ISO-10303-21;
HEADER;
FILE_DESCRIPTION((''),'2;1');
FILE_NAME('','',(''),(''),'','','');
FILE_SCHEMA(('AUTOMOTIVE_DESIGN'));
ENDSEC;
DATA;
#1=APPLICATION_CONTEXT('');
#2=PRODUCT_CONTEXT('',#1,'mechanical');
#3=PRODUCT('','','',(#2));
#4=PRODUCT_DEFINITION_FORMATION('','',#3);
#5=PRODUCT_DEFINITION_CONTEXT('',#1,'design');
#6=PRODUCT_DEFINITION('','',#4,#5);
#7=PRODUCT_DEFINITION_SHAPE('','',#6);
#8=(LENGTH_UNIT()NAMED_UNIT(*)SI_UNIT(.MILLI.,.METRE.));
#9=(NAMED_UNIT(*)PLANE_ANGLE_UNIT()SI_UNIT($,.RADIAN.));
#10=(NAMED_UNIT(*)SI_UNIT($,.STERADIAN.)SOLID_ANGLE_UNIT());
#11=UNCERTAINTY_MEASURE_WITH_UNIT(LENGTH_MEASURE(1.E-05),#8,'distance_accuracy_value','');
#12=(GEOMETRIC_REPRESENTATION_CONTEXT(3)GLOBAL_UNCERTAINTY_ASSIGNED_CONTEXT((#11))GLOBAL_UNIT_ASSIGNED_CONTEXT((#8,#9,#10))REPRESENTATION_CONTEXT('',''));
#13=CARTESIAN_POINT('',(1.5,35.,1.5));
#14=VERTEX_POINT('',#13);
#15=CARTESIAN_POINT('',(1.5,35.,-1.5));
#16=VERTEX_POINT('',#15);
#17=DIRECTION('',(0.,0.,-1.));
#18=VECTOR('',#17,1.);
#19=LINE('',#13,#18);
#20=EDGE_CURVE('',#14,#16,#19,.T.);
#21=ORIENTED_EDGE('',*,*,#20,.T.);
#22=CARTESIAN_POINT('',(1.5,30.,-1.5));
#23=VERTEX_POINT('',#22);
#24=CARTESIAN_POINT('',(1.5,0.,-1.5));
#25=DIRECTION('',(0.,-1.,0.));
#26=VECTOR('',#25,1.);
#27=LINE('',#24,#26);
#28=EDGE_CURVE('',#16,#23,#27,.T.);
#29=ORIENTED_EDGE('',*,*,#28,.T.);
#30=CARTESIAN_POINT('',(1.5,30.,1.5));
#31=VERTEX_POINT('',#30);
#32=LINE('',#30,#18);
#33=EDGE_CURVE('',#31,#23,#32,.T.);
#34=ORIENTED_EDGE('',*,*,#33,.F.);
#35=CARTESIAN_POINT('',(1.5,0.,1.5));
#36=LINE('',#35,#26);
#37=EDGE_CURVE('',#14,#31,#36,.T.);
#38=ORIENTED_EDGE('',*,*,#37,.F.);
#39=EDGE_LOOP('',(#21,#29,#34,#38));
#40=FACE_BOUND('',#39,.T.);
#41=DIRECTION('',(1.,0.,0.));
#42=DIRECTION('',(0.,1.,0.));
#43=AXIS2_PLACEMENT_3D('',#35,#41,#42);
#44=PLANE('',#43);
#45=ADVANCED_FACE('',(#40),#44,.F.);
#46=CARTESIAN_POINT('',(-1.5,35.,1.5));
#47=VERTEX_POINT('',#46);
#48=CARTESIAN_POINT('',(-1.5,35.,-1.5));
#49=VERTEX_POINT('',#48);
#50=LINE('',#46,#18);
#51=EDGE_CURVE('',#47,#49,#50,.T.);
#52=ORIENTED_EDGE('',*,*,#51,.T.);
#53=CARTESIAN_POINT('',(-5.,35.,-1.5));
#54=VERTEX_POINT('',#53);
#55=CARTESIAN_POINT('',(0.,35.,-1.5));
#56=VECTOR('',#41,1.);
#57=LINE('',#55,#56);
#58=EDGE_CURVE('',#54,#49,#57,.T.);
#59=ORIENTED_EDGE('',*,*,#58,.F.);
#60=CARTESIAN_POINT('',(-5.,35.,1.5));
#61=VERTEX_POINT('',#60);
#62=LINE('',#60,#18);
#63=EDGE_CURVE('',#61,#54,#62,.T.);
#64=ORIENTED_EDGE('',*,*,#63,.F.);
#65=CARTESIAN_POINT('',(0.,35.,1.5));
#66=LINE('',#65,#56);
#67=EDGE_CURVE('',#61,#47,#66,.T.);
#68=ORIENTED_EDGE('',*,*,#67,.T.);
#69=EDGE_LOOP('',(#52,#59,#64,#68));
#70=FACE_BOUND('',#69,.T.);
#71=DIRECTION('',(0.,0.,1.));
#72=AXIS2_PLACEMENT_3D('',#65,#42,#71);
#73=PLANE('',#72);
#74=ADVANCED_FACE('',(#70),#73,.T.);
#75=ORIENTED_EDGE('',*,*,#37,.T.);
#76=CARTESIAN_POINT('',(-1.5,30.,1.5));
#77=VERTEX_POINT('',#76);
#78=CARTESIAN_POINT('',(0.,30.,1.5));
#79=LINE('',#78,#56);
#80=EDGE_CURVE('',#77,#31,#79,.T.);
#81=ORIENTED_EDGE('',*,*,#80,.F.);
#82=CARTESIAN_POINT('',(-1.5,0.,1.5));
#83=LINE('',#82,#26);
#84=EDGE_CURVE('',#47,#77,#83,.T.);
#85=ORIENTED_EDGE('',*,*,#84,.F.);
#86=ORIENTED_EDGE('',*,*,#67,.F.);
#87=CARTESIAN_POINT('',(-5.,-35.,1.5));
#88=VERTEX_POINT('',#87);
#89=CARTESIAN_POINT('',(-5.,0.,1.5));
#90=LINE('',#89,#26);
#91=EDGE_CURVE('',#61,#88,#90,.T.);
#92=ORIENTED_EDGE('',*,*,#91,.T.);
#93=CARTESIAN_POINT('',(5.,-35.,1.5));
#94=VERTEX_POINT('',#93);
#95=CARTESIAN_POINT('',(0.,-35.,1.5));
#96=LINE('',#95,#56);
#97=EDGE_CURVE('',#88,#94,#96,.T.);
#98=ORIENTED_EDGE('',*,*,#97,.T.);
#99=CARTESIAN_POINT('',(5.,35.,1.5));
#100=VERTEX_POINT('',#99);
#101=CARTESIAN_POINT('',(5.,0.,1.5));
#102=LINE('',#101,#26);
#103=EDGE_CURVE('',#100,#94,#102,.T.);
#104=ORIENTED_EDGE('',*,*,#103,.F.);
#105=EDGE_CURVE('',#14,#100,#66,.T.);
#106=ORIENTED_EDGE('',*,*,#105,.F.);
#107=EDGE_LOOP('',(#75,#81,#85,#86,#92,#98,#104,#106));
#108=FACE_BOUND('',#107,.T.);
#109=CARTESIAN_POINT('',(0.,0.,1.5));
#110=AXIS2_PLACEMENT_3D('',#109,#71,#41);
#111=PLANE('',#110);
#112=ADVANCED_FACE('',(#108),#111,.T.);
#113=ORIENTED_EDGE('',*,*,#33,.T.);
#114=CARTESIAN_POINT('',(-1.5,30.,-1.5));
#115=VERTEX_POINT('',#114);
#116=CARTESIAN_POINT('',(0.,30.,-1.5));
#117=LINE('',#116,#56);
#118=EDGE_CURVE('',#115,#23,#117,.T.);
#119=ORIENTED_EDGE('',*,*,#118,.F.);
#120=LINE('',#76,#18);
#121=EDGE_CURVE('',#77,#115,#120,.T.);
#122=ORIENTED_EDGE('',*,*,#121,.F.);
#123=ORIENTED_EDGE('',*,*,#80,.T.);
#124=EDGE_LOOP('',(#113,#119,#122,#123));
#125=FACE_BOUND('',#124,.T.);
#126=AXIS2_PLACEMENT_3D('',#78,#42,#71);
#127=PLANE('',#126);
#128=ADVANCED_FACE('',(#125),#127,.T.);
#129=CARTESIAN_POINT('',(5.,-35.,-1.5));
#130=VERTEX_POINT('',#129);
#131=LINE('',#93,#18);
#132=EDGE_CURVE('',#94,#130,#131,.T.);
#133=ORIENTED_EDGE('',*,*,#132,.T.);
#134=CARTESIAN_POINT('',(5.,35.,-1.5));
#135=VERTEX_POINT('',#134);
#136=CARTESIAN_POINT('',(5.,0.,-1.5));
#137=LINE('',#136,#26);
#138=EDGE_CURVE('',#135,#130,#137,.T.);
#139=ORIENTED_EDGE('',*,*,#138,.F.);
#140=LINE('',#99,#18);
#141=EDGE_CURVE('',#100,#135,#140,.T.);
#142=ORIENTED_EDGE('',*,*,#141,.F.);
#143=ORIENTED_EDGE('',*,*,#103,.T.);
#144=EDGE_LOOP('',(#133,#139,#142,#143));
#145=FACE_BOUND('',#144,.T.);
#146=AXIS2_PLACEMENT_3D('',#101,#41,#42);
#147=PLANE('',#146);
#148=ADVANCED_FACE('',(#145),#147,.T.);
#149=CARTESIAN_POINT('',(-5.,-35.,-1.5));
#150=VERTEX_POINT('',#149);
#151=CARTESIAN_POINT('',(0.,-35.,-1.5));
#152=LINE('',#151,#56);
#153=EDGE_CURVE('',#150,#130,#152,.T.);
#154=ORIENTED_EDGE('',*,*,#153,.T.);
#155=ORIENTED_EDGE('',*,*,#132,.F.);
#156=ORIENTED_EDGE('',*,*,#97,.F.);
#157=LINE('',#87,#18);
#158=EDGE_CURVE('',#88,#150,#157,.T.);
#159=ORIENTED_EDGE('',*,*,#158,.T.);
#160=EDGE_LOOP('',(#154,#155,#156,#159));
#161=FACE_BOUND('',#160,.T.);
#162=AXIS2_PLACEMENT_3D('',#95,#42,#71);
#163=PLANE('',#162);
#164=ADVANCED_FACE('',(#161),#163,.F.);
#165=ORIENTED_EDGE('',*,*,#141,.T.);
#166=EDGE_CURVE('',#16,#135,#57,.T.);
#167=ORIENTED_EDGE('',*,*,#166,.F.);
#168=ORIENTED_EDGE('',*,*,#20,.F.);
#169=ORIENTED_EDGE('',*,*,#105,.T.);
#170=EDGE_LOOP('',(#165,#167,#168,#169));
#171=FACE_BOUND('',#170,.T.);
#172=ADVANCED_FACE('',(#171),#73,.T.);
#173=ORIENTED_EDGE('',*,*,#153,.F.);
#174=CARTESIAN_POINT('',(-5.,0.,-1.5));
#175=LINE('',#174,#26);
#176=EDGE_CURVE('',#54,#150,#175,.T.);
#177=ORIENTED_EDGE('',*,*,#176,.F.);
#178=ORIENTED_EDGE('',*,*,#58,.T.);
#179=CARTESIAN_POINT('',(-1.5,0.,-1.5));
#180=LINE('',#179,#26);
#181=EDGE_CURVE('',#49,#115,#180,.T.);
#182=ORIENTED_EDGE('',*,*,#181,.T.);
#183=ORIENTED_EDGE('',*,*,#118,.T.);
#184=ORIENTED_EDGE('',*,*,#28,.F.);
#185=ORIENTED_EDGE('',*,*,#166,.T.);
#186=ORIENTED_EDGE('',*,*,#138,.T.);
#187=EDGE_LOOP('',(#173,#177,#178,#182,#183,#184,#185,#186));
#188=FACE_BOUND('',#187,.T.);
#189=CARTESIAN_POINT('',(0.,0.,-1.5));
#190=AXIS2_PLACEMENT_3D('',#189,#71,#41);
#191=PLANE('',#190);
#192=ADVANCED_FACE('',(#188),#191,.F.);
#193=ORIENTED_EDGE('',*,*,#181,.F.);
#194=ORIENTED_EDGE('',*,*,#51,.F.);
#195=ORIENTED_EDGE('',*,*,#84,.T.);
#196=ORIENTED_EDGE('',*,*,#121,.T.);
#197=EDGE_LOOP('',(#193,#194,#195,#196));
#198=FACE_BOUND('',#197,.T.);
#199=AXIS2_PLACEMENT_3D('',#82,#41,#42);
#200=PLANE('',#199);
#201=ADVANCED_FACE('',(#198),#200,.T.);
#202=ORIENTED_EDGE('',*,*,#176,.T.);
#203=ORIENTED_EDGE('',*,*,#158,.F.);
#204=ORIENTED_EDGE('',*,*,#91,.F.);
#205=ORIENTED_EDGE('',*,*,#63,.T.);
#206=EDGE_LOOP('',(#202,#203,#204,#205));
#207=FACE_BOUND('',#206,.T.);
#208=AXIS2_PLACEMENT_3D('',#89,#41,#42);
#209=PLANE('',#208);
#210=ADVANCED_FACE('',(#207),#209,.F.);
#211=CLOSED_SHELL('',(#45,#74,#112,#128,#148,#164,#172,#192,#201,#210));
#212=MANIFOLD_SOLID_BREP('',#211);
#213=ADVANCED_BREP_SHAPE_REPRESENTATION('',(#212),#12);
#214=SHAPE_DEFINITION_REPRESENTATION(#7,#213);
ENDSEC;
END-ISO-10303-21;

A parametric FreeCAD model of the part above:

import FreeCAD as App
import Part
import Sketcher

doc = App.newDocument("Part")
body = doc.addObject("PartDesign::Body", "Body")

sketch1 = doc.addObject("Sketcher::SketchObject", "Sketch")
body.addObject(sketch1)
sketch1.AttachmentSupport = (doc.XY_Plane, [""])
sketch1.MapMode = "FlatFace"
sketch1.addGeometry(Part.LineSegment(App.Vector(-1.5, 35, 0), App.Vector(-5, 35, 0)), False)
sketch1.addGeometry(Part.LineSegment(App.Vector(-5, 35, 0), App.Vector(-5, -35, 0)), False)
sketch1.addGeometry(Part.LineSegment(App.Vector(-5, -35, 0), App.Vector(5, -35, 0)), False)
sketch1.addGeometry(Part.LineSegment(App.Vector(5, -35, 0), App.Vector(5, 35, 0)), False)
sketch1.addGeometry(Part.LineSegment(App.Vector(5, 35, 0), App.Vector(1.5, 35, 0)), False)
sketch1.addGeometry(Part.LineSegment(App.Vector(1.5, 35, 0), App.Vector(1.5, 30, 0)), False)
sketch1.addGeometry(Part.LineSegment(App.Vector(1.5, 30, 0), App.Vector(-1.5, 30, 0)), False)
sketch1.addGeometry(Part.LineSegment(App.Vector(-1.5, 30, 0), App.Vector(-1.5, 35, 0)), False)
sketch1.addConstraint(Sketcher.Constraint("Coincident", 0, 2, 1, 1))
sketch1.addConstraint(Sketcher.Constraint("Coincident", 1, 2, 2, 1))
sketch1.addConstraint(Sketcher.Constraint("Coincident", 2, 2, 3, 1))
sketch1.addConstraint(Sketcher.Constraint("Coincident", 3, 2, 4, 1))
sketch1.addConstraint(Sketcher.Constraint("Coincident", 4, 2, 5, 1))
sketch1.addConstraint(Sketcher.Constraint("Coincident", 5, 2, 6, 1))
sketch1.addConstraint(Sketcher.Constraint("Coincident", 6, 2, 7, 1))
sketch1.addConstraint(Sketcher.Constraint("Coincident", 7, 2, 0, 1))
sketch1.addConstraint(Sketcher.Constraint("Horizontal", 0))
sketch1.addConstraint(Sketcher.Constraint("Vertical", 1))
sketch1.addConstraint(Sketcher.Constraint("Horizontal", 2))
sketch1.addConstraint(Sketcher.Constraint("Vertical", 3))
sketch1.addConstraint(Sketcher.Constraint("Horizontal", 4))
sketch1.addConstraint(Sketcher.Constraint("Vertical", 5))
sketch1.addConstraint(Sketcher.Constraint("Horizontal", 6))
sketch1.addConstraint(Sketcher.Constraint("Vertical", 7))
sketch1.addConstraint(Sketcher.Constraint("Symmetric", 0, 2, 2, 2, -1, 1))
sketch1.addConstraint(Sketcher.Constraint("Symmetric", 4, 2, 7, 2, -2))
sketch1.addConstraint(Sketcher.Constraint("DistanceX", 2, 1, 2, 2, 10.0))
sketch1.addConstraint(Sketcher.Constraint("DistanceX", 6, 2, 6, 1, 3.0))
sketch1.addConstraint(Sketcher.Constraint("DistanceY", 1, 2, 1, 1, 70.0))
sketch1.addConstraint(Sketcher.Constraint("DistanceY", 5, 2, 5, 1, 5.0))
pad1 = doc.addObject("PartDesign::Pad", "Pad")
body.addObject(pad1)
pad1.Profile = sketch1
pad1.Length = 3
pad1.Midplane = True

doc.recompute()
